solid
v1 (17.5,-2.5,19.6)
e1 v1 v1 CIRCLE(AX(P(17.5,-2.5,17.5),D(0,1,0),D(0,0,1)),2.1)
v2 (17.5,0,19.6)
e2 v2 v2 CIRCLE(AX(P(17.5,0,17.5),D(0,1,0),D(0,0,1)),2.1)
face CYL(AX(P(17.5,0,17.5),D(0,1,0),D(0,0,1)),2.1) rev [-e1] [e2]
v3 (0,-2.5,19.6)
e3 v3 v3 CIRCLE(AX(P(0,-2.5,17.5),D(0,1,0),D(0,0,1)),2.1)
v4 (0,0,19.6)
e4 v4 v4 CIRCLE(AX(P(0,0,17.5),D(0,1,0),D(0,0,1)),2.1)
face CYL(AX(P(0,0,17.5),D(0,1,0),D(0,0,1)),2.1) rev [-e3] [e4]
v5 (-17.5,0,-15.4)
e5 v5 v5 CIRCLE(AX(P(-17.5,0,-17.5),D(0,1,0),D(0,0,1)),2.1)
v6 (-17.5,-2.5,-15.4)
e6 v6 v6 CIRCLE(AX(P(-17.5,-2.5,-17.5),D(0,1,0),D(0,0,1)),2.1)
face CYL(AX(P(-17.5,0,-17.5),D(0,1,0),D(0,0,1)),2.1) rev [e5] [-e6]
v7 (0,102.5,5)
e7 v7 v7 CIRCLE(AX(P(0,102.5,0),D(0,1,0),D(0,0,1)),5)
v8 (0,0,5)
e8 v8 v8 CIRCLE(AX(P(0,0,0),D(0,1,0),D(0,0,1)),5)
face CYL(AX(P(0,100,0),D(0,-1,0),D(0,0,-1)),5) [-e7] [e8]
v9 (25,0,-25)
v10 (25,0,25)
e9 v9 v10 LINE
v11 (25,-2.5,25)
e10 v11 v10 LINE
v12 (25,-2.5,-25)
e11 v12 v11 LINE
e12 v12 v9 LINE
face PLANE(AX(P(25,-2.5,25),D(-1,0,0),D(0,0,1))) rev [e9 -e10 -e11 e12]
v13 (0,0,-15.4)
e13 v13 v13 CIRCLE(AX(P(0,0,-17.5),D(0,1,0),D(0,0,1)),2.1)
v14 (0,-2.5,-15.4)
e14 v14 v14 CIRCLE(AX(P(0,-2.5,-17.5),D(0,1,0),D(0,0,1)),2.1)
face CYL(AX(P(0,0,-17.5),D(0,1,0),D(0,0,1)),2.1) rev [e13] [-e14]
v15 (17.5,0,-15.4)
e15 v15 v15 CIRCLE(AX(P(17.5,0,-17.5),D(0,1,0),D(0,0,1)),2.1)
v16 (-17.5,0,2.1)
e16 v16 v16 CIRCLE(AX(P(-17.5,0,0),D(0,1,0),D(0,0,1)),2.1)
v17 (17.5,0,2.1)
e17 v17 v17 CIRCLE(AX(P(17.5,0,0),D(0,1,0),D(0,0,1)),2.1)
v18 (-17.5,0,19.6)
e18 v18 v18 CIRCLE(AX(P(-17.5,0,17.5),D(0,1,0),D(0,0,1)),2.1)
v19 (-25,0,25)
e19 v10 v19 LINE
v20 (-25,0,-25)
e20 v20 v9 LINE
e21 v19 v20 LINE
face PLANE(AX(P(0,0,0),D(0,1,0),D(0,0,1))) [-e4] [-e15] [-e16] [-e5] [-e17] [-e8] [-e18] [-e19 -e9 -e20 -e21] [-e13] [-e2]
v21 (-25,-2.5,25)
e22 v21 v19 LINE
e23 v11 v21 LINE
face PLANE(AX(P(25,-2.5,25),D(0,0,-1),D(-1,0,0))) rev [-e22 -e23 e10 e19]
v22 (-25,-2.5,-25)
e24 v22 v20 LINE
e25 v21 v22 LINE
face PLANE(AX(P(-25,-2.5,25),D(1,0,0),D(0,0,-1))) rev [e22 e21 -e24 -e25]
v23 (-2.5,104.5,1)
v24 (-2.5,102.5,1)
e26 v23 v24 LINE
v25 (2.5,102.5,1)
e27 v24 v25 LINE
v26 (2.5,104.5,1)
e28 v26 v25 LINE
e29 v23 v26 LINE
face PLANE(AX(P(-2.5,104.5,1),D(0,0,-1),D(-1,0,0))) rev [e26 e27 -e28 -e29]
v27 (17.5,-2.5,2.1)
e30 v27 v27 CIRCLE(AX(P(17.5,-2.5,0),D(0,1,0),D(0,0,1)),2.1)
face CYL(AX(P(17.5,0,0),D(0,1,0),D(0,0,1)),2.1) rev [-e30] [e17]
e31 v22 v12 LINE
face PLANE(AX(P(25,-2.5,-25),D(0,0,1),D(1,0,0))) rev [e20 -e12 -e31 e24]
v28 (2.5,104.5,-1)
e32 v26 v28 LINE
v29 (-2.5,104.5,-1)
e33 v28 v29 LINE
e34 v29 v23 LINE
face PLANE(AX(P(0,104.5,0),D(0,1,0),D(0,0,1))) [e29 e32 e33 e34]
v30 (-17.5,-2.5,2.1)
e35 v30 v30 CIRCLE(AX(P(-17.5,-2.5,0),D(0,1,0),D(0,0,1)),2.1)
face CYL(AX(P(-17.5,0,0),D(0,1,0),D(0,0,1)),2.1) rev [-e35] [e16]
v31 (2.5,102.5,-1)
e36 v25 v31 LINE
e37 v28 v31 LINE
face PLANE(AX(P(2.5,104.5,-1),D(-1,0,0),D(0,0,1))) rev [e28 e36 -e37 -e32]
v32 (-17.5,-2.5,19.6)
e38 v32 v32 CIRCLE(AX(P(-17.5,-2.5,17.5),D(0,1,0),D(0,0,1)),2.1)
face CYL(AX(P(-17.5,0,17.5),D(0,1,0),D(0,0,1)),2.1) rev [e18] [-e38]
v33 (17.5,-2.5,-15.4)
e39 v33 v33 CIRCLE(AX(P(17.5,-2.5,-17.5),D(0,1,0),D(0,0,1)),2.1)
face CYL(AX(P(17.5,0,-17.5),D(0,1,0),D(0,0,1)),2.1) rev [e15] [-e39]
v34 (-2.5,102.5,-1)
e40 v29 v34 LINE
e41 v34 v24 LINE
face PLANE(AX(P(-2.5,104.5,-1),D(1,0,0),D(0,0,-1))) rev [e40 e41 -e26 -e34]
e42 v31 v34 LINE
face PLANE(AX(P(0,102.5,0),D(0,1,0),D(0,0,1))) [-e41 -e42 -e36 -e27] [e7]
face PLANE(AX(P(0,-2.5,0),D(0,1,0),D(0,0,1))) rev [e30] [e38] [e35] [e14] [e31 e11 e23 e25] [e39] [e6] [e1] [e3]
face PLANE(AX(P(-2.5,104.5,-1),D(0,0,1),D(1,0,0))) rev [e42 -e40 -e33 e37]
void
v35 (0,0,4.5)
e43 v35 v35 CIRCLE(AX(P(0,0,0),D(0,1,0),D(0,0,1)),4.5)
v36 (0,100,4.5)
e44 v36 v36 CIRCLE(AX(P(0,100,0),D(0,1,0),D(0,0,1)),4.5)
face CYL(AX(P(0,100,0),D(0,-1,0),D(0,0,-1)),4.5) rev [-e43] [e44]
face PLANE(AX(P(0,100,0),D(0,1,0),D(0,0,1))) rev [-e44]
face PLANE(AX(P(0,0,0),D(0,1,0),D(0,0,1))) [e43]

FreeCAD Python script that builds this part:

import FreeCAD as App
import Part
import Sketcher

V = App.Vector
Q = App.Units.Quantity


def add_polygon(sketch, points):
    """Adds a closed chain of lines whose ends are joined by coincident constraints."""
    first, n = sketch.GeometryCount, len(points)
    for a, b in zip(points, points[1:] + points[:1]):
        sketch.addGeometry(Part.LineSegment(App.Vector(*a, 0), App.Vector(*b, 0)), False)
    for i in range(n):
        sketch.addConstraint(Sketcher.Constraint("Coincident", first + i, 2, first + (i + 1) % n, 1))

doc = App.newDocument("Part")
params = doc.addObject("Spreadsheet::Sheet", "Params")
for row, (alias, value) in enumerate([
    ("sketch1_diameter", "10 mm"),
    ("sketch1_diameter2", "9 mm"),
    ("pad1_length", "100 mm"),
    ("sketch2_diameter", "10 mm"),
    ("pad2_length", "2.5 mm"),
    ("sketch3_width", "50 mm"),
    ("pad3_length", "2.5 mm"),
    ("sketch4_diameter", "4.2 mm"),
    ("hole_diameter", "4.2 mm"),
    ("hole_depth", "14 mm"),
    ("sketch5_width", "5 mm"),
    ("sketch5_height", "2 mm"),
    ("pad4_length", "2 mm"),
], start=1):
    params.set(f"A{row}", alias)
    params.set(f"B{row}", "=" + value)
    params.setAlias(f"B{row}", alias)

body = doc.addObject("PartDesign::Body", "Body")

sketch1 = body.newObject("Sketcher::SketchObject", "Sketch")
sketch1.AttachmentSupport = (doc.getObject("XZ_Plane"), [""])
sketch1.MapMode = "FlatFace"
sketch1.addGeometry([
    Part.Circle(V(0, 0, 0), V(0, 0, 1), 5),
    Part.Circle(V(0, 0, 0), V(0, 0, 1), 4.5),
], False)
sketch1.addConstraint([
    Sketcher.Constraint("Coincident", 0, 3, -1, 1),
    Sketcher.Constraint("Coincident", 1, 3, -1, 1),
    Sketcher.Constraint("Diameter", 0, Q("10 mm")),
    Sketcher.Constraint("Diameter", 1, Q("9 mm")),
])
sketch1.setExpression("Constraints[2]", "Params.sketch1_diameter")
sketch1.setExpression("Constraints[3]", "Params.sketch1_diameter2")
pad1 = body.newObject("PartDesign::Pad", "Pad")
pad1.Profile = sketch1
pad1.setExpression("Length", "Params.pad1_length")
pad1.Reversed = True

sketch2 = body.newObject("Sketcher::SketchObject", "Sketch001")
sketch2.AttachmentSupport = (doc.getObject("XZ_Plane"), [""])
sketch2.MapMode = "FlatFace"
sketch2.AttachmentOffset = App.Placement(V(0, 0, -100), App.Rotation())
sketch2.addGeometry(Part.Circle(V(0, 0, 0), V(0, 0, 1), 5), False)
sketch2.addConstraint([
    Sketcher.Constraint("Coincident", 0, 3, -1, 1),
    Sketcher.Constraint("Diameter", 0, Q("10 mm")),
])
sketch2.setExpression("Constraints[1]", "Params.sketch2_diameter")
pad2 = body.newObject("PartDesign::Pad", "Pad001")
pad2.Profile = sketch2
pad2.setExpression("Length", "Params.pad2_length")
pad2.Reversed = True

sketch3 = body.newObject("Sketcher::SketchObject", "Sketch002")
sketch3.AttachmentSupport = (doc.getObject("XZ_Plane"), [""])
sketch3.MapMode = "FlatFace"
add_polygon(sketch3, [(-25, 25), (-25, -25), (25, -25), (25, 25)])
sketch3.addConstraint([
    Sketcher.Constraint("Vertical", 0),
    Sketcher.Constraint("Horizontal", 1),
    Sketcher.Constraint("Vertical", 2),
    Sketcher.Constraint("Horizontal", 3),
    Sketcher.Constraint("Symmetric", 0, 2, 2, 2, -1, 1),
    Sketcher.Constraint("Equal", 3, 0),
    Sketcher.Constraint("DistanceX", 1, 1, 1, 2, Q("50 mm")),
])
sketch3.setExpression("Constraints[10]", "Params.sketch3_width")
pad3 = body.newObject("PartDesign::Pad", "Pad002")
pad3.Profile = sketch3
pad3.setExpression("Length", "Params.pad3_length")

sketch4 = body.newObject("Sketcher::SketchObject", "Sketch003")
sketch4.AttachmentSupport = (doc.getObject("XZ_Plane"), [""])
sketch4.MapMode = "FlatFace"
sketch4.addGeometry([
    Part.Circle(V(-17.5, 0, 0), V(0, 0, 1), 2.1),
    Part.Circle(V(-17.5, 17.5, 0), V(0, 0, 1), 2.1),
    Part.Circle(V(0, 17.5, 0), V(0, 0, 1), 2.1),
    Part.Circle(V(17.5, 17.5, 0), V(0, 0, 1), 2.1),
    Part.Circle(V(17.5, 0, 0), V(0, 0, 1), 2.1),
    Part.Circle(V(17.5, -17.5, 0), V(0, 0, 1), 2.1),
    Part.Circle(V(0, -17.5, 0), V(0, 0, 1), 2.1),
    Part.Circle(V(-17.5, -17.5, 0), V(0, 0, 1), 2.1),
], False)
sketch4.addConstraint([
    Sketcher.Constraint("Equal", 0, 1),
    Sketcher.Constraint("Equal", 1, 2),
    Sketcher.Constraint("Equal", 2, 3),
    Sketcher.Constraint("Equal", 3, 4),
    Sketcher.Constraint("Equal", 4, 5),
    Sketcher.Constraint("Equal", 5, 6),
    Sketcher.Constraint("Equal", 6, 7),
    Sketcher.Constraint("Symmetric", 0, 3, 4, 3, -1, 1),
    Sketcher.Constraint("Symmetric", 1, 3, 5, 3, -1, 1),
    Sketcher.Constraint("Symmetric", 2, 3, 6, 3, -1, 1),
    Sketcher.Constraint("Symmetric", 3, 3, 7, 3, -1, 1),
    Sketcher.Constraint("Symmetric", 1, 3, 3, 3, -2),
    Sketcher.Constraint("PointOnObject", 0, 3, -1),
    Sketcher.Constraint("PointOnObject", 2, 3, -2),
    Sketcher.Constraint("Horizontal", 1, 3, 2, 3),
    Sketcher.Constraint("Vertical", 0, 3, 1, 3),
    Sketcher.Constraint("Diameter", 0, Q("4.2 mm")),
    Sketcher.Constraint("DistanceX", 1, 3, 3, 3, Q("35 mm")),
    Sketcher.Constraint("DistanceY", 5, 3, 3, 3, Q("35 mm")),
])
sketch4.setExpression("Constraints[16]", "Params.sketch4_diameter")
doc.recompute()
hole = body.newObject("PartDesign::Hole", "Hole")
hole.Profile = sketch4
hole.ThreadType = "None"
hole.setExpression("Diameter", "Params.hole_diameter")
hole.DepthType = "Dimension"
hole.setExpression("Depth", "Params.hole_depth")
hole.DrillPoint = "Angled"
hole.DrillPointAngle = 118
hole.Reversed = True

sketch5 = body.newObject("Sketcher::SketchObject", "Sketch004")
sketch5.AttachmentSupport = (doc.getObject("XZ_Plane"), [""])
sketch5.MapMode = "FlatFace"
sketch5.AttachmentOffset = App.Placement(V(0, 0, -102.5), App.Rotation())
add_polygon(sketch5, [(-2.5, -1), (-2.5, 1), (2.5, 1), (2.5, -1)])
sketch5.addConstraint([
    Sketcher.Constraint("Vertical", 0),
    Sketcher.Constraint("Horizontal", 1),
    Sketcher.Constraint("Vertical", 2),
    Sketcher.Constraint("Horizontal", 3),
    Sketcher.Constraint("Symmetric", 0, 2, 2, 2, -1, 1),
    Sketcher.Constraint("DistanceX", 1, 1, 1, 2, Q("5 mm")),
    Sketcher.Constraint("DistanceY", 0, 1, 0, 2, Q("2 mm")),
])
sketch5.setExpression("Constraints[9]", "Params.sketch5_width")
sketch5.setExpression("Constraints[10]", "Params.sketch5_height")
pad4 = body.newObject("PartDesign::Pad", "Pad003")
pad4.Profile = sketch5
pad4.setExpression("Length", "Params.pad4_length")
pad4.Reversed = True

doc.recompute()
